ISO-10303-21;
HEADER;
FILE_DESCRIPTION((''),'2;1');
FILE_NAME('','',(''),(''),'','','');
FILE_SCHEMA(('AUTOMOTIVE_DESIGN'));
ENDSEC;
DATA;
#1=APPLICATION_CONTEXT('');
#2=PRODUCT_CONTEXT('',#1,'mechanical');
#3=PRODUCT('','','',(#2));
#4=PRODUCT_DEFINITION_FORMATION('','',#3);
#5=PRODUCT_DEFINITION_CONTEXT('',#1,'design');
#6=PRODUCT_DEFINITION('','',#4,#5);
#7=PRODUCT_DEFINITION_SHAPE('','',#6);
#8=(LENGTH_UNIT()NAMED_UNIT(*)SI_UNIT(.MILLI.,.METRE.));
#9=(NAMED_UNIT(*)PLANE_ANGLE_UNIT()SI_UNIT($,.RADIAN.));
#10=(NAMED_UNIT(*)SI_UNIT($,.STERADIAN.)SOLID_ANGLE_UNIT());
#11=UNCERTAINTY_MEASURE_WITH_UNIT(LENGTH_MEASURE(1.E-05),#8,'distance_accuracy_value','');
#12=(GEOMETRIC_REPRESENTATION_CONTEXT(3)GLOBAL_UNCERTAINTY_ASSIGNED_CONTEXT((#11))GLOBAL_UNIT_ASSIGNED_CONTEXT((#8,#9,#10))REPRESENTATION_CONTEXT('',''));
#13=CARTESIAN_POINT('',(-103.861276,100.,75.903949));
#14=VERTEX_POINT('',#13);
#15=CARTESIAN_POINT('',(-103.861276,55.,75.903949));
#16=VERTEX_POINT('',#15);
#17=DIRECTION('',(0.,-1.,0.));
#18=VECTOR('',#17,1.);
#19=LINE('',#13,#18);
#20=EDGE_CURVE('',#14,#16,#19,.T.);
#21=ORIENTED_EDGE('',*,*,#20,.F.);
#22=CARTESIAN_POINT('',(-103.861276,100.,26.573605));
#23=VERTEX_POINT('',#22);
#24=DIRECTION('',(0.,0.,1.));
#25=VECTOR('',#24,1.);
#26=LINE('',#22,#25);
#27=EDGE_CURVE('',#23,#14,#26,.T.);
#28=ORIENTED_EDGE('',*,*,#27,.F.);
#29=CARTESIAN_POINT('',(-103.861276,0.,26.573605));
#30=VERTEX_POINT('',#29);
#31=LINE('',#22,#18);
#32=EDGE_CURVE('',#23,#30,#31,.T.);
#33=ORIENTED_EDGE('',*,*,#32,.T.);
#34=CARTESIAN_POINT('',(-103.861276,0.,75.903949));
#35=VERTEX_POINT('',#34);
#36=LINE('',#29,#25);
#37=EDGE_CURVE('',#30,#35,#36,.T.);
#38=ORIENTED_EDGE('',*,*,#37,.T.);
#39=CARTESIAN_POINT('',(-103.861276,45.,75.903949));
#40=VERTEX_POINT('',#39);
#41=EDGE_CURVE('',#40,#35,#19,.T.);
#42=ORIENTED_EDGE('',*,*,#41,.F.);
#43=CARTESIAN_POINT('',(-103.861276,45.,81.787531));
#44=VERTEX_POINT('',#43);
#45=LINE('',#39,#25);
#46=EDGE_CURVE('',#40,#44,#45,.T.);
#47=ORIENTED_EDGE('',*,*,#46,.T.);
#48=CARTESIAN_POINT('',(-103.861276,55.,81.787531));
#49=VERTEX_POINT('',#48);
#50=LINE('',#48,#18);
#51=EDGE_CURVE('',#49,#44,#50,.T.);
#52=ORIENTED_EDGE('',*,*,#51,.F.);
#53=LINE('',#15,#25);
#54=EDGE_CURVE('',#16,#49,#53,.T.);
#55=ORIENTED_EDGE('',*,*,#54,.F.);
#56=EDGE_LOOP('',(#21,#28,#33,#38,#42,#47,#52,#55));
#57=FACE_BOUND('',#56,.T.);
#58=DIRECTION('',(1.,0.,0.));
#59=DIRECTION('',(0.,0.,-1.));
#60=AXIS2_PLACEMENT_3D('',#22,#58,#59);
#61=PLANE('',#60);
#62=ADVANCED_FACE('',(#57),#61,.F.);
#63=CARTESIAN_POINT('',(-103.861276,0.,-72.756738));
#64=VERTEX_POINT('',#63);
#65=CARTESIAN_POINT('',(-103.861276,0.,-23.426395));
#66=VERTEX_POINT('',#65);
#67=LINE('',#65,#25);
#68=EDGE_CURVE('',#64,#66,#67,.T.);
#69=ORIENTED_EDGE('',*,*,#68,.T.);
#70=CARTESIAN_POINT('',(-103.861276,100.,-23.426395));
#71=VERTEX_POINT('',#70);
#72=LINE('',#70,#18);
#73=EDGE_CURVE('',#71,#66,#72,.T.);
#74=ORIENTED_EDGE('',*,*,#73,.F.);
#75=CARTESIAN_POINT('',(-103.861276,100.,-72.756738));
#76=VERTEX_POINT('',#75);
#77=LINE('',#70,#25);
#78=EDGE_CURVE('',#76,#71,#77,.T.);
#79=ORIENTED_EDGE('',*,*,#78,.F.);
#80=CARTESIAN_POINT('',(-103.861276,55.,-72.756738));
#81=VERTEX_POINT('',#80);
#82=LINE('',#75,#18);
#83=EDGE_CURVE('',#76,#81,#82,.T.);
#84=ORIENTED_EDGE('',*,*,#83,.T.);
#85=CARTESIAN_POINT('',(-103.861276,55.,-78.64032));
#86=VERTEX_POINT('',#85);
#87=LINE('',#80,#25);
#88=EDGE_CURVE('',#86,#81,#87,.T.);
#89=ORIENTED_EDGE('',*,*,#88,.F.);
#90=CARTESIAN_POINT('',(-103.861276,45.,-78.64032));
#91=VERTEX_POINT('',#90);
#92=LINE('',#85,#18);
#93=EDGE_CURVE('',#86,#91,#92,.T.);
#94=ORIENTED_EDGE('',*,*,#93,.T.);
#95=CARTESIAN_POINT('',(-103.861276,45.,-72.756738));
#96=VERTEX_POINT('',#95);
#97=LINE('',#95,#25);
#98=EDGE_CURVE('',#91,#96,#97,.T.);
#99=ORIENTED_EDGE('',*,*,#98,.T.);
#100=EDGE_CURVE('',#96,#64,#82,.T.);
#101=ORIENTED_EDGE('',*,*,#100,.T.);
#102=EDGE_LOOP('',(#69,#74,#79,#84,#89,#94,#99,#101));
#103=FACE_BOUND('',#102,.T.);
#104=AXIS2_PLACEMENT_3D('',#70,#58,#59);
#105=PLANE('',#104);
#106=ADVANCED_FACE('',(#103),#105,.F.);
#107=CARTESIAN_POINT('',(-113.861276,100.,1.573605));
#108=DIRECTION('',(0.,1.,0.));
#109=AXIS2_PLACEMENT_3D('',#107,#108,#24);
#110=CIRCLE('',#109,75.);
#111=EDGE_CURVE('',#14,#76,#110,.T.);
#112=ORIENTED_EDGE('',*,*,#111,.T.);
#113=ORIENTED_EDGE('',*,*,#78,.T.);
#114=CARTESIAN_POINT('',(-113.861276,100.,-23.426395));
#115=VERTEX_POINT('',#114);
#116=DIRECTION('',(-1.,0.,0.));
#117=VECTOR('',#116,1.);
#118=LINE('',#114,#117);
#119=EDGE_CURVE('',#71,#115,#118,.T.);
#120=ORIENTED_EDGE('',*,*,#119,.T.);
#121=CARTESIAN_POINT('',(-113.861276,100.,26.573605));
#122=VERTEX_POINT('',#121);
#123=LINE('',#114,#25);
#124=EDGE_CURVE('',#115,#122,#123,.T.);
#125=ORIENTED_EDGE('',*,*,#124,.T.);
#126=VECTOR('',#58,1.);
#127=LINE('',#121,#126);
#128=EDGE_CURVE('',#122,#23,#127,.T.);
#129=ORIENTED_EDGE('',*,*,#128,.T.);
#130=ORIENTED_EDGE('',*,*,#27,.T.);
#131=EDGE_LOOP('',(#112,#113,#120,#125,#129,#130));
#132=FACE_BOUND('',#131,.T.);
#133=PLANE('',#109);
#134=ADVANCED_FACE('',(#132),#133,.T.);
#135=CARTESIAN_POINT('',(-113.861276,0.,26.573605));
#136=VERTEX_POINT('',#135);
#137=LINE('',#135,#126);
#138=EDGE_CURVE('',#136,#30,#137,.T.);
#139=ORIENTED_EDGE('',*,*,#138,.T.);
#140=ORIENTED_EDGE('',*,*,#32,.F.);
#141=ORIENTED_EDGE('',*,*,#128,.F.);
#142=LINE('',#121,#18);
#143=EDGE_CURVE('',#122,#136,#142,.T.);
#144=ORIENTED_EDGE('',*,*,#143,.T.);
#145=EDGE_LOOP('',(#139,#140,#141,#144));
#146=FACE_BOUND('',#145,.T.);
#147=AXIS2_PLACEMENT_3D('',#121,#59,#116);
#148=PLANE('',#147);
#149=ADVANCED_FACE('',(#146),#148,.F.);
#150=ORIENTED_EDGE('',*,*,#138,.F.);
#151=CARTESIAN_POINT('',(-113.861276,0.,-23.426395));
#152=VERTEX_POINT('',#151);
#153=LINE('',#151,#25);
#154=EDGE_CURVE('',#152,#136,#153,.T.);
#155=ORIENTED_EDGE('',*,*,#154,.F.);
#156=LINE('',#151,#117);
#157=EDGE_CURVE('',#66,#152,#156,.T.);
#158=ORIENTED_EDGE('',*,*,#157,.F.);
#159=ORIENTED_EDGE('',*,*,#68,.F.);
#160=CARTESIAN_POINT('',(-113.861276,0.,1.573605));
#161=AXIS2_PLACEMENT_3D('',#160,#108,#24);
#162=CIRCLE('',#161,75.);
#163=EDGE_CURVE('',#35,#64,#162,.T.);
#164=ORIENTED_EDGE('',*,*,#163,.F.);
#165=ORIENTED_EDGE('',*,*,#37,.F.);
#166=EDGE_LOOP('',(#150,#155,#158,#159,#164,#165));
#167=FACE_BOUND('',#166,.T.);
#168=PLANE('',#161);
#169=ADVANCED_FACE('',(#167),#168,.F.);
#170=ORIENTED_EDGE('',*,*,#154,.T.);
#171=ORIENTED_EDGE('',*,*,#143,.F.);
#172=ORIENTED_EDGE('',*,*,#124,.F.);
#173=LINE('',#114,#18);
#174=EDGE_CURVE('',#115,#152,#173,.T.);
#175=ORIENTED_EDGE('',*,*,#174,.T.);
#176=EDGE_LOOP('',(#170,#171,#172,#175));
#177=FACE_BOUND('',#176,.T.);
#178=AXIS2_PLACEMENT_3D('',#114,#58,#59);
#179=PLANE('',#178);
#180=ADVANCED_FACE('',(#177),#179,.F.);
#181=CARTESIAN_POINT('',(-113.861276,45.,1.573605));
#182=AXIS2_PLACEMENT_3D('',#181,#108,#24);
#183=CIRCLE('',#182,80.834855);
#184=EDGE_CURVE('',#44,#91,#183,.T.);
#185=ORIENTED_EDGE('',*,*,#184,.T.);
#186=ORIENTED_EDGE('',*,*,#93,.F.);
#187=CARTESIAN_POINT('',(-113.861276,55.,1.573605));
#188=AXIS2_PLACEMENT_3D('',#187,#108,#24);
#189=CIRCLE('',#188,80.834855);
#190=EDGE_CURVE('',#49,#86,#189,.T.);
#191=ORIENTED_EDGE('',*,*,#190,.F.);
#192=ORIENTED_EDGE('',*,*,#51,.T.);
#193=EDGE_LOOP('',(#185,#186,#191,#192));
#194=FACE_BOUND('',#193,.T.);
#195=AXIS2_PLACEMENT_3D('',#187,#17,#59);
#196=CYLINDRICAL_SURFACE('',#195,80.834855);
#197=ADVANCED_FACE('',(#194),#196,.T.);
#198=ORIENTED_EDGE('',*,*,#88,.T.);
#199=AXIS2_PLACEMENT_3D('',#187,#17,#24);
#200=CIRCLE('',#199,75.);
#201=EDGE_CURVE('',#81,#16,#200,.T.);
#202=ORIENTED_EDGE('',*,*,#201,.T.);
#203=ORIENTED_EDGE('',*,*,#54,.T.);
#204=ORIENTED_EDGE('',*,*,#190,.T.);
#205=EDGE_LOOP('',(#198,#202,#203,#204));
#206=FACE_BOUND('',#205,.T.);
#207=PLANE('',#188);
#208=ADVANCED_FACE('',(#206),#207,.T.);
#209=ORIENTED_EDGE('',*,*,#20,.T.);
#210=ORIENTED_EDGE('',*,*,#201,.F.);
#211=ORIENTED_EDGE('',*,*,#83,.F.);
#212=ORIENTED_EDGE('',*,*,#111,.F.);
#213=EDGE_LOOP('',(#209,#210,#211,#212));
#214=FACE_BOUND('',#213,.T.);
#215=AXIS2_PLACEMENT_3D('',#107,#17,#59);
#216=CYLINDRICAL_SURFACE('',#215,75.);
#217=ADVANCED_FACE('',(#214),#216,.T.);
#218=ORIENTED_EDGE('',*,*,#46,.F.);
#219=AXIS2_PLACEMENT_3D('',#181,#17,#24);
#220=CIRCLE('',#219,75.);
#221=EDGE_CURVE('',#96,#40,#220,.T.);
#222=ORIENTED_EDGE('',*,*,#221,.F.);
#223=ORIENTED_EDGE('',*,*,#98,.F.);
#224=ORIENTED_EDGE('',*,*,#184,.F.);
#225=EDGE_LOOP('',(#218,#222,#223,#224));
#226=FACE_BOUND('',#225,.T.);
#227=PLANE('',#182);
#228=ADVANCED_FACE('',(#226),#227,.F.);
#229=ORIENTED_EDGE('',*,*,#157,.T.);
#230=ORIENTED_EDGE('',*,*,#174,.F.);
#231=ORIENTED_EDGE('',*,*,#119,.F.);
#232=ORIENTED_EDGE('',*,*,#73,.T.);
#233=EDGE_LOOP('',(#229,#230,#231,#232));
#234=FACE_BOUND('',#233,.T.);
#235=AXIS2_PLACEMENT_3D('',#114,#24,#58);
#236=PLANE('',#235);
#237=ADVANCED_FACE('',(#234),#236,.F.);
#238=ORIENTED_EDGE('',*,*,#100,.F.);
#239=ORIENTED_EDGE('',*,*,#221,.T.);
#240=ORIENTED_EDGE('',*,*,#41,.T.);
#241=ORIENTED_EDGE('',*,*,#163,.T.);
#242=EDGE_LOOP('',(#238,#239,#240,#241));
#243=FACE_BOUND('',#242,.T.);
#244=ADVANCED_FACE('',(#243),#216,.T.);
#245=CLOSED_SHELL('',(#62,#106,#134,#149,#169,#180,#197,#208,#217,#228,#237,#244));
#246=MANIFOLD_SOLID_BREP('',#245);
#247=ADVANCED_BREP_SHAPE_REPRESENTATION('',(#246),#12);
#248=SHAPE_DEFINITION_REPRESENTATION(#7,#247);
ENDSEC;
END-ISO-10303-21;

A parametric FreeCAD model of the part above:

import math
import FreeCAD as App
import Part
import Sketcher
from FreeCAD import Vector

doc = App.newDocument("Part")
body = doc.addObject("PartDesign::Body", "Body")

# Sketch on XZ plane
sketch1 = doc.addObject("Sketcher::SketchObject", "Sketch")
body.addObject(sketch1)
sketch1.AttachmentSupport = (doc.XZ_Plane, [""])
sketch1.MapMode = "FlatFace"
sketch1.addGeometry([
    Part.LineSegment(Vector(-103.861276, -23.426395, 0), Vector(-113.861276, -23.426395, 0)),  # 0
    Part.LineSegment(Vector(-113.861276, -23.426395, 0), Vector(-113.861276, 26.573605, 0)),  # 1
    Part.LineSegment(Vector(-113.861276, 26.573605, 0), Vector(-103.861276, 26.573605, 0)),  # 2
    Part.LineSegment(Vector(-103.861276, 26.573605, 0), Vector(-103.861276, 75.903949, 0)),  # 3
    Part.ArcOfCircle(Part.Circle(Vector(-113.861276, 1.573605, 0), Vector(0, 0, 1), 75), math.radians(-82.337744), math.radians(82.337744)),  # 4
    Part.LineSegment(Vector(-103.861276, -72.756738, 0), Vector(-103.861276, -23.426395, 0)),  # 5
], False)
sketch1.addConstraint([
    Sketcher.Constraint("Coincident", 0, 2, 1, 1),
    Sketcher.Constraint("Coincident", 1, 2, 2, 1),
    Sketcher.Constraint("Coincident", 2, 2, 3, 1),
    Sketcher.Constraint("Coincident", 3, 2, 4, 2),
    Sketcher.Constraint("Coincident", 4, 1, 5, 1),
    Sketcher.Constraint("Coincident", 5, 2, 0, 1),
    Sketcher.Constraint("Horizontal", 0),
    Sketcher.Constraint("Vertical", 1),
    Sketcher.Constraint("Horizontal", 2),
    Sketcher.Constraint("Vertical", 3),
    Sketcher.Constraint("Vertical", 5),
    Sketcher.Constraint("Vertical", 4, 3, 0, 2),
    Sketcher.Constraint("Vertical", 3, 2, 4, 1),
    Sketcher.Constraint("Equal", 3, 5),
    Sketcher.Constraint("Radius", 4, 75.0),
    Sketcher.Constraint("DistanceX", 0, 2, 0, 1, 10.0),
    Sketcher.Constraint("DistanceY", 1, 1, 1, 2, 50.0),
    Sketcher.Constraint("DistanceY", -1, 1, 3, 2, 75.903949),
    Sketcher.Constraint("DistanceX", 4, 3, -1, 1, 113.861276),
])
pad1 = doc.addObject("PartDesign::Pad", "Pad")
body.addObject(pad1)
pad1.Profile = sketch1
pad1.Length = 100
pad1.Reversed = True

# Sketch on XZ plane
sketch2 = doc.addObject("Sketcher::SketchObject", "Sketch001")
body.addObject(sketch2)
sketch2.AttachmentSupport = (doc.XZ_Plane, [""])
sketch2.MapMode = "FlatFace"
sketch2.AttachmentOffset = App.Placement(Vector(0, 0, -50), App.Rotation())
sketch2.addGeometry([
    Part.LineSegment(Vector(-103.861276, 75.903949, 0), Vector(-103.861276, 81.787531, 0)),
    Part.ArcOfCircle(Part.Circle(Vector(-113.861276, 1.573605, 0), Vector(0, 0, 1), 80.834855), math.radians(-82.893791), math.radians(82.893791)),
    Part.LineSegment(Vector(-103.861276, -78.64032, 0), Vector(-103.861276, -72.756738, 0)),
    Part.ArcOfCircle(Part.Circle(Vector(-113.861276, 1.573605, 0), Vector(0, 0, 1), 75), math.radians(-82.337744), math.radians(82.337744)),
], False)
sketch2.addConstraint([
    Sketcher.Constraint("Coincident", 0, 2, 1, 2),
    Sketcher.Constraint("Coincident", 1, 1, 2, 1),
    Sketcher.Constraint("Coincident", 2, 2, 3, 1),
    Sketcher.Constraint("Coincident", 3, 2, 0, 1),
    Sketcher.Constraint("Vertical", 0),
    Sketcher.Constraint("Vertical", 2),
    Sketcher.Constraint("Coincident", 3, 3, 1, 3),
    Sketcher.Constraint("Vertical", 0, 2, 1, 1),
    Sketcher.Constraint("Radius", 3, 75.0),
    Sketcher.Constraint("DistanceX", 3, 3, 0, 2, 10.0),
    Sketcher.Constraint("Radius", 1, 80.834855),
    Sketcher.Constraint("DistanceY", -1, 1, 0, 2, 81.787531),
    Sketcher.Constraint("DistanceX", 1, 3, -1, 1, 113.861276),
])
pad2 = doc.addObject("PartDesign::Pad", "Pad001")
body.addObject(pad2)
pad2.Profile = sketch2
pad2.Length = 10
pad2.Midplane = True

doc.recompute()
